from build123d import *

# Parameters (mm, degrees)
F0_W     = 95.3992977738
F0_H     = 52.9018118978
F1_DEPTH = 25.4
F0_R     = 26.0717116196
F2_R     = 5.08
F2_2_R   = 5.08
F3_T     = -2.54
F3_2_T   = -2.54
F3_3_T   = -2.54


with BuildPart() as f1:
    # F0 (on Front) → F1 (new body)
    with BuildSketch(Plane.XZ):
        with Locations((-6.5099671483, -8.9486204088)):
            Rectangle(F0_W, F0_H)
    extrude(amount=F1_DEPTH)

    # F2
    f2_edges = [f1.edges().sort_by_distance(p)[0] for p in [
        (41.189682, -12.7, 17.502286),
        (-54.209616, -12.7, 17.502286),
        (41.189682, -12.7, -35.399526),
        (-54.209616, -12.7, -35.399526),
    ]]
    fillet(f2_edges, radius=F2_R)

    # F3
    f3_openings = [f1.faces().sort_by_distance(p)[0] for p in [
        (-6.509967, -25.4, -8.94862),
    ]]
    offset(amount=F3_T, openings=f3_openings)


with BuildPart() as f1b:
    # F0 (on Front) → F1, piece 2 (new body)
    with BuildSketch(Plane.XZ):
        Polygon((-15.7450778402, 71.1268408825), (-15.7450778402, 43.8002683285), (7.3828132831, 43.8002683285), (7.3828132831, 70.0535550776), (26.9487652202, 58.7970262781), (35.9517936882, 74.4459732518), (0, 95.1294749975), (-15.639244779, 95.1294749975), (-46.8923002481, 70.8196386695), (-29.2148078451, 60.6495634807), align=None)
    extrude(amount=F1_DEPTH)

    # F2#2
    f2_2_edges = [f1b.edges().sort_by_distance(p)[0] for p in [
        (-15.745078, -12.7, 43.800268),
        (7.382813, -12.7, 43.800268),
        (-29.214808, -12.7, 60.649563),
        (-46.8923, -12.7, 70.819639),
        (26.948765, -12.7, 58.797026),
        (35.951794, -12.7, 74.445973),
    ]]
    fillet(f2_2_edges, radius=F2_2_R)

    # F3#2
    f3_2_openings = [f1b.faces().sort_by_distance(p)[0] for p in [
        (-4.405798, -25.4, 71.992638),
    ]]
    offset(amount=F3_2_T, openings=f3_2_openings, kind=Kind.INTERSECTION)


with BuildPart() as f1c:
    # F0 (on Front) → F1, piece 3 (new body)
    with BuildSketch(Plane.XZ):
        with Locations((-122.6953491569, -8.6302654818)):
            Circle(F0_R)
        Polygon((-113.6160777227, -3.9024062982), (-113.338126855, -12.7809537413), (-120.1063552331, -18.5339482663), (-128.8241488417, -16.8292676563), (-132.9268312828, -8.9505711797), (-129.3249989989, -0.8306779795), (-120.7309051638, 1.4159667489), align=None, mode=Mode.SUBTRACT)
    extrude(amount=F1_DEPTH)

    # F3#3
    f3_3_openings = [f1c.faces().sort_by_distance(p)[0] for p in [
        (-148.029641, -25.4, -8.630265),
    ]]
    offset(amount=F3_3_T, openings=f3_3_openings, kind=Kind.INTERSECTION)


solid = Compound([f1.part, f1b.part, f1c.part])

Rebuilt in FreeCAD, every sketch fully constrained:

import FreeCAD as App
import Part
import Sketcher
from FreeCAD import Vector
Q = App.Units.Quantity


def edges_at(feature, points):
    """Names of the edges that pass closest to the given points."""
    edges = feature.Shape.Edges
    near = lambda p: min(range(len(edges)), key=lambda i: edges[i].distToShape(Part.Vertex(*p))[0])
    return sorted({f"Edge{near(p) + 1}" for p in points})


def faces_at(feature, points):
    """Names of the faces that lie closest to the given points."""
    faces = feature.Shape.Faces
    near = lambda p: min(range(len(faces)), key=lambda i: faces[i].distToShape(Part.Vertex(*p))[0])
    return sorted({f"Face{near(p) + 1}" for p in points})


def add_polygon(sketch, points):
    """Adds a closed chain of lines whose ends are joined by coincident constraints."""
    first, n = sketch.GeometryCount, len(points)
    for a, b in zip(points, points[1:] + points[:1]):
        sketch.addGeometry(Part.LineSegment(App.Vector(*a, 0), App.Vector(*b, 0)), False)
    for i in range(n):
        sketch.addConstraint(Sketcher.Constraint("Coincident", first + i, 2, first + (i + 1) % n, 1))

doc = App.newDocument("Part")
body = doc.addObject("PartDesign::Body", "Body")

sketch1 = body.newObject("Sketcher::SketchObject", "Sketch")
sketch1.AttachmentSupport = (doc.getObject("XZ_Plane"), [""])
sketch1.MapMode = "FlatFace"
add_polygon(sketch1, [(-54, 18), (-54, -35), (41, -35), (41, 18)])
sketch1.addConstraint([
    Sketcher.Constraint("Vertical", 0),
    Sketcher.Constraint("Horizontal", 1),
    Sketcher.Constraint("Vertical", 2),
    Sketcher.Constraint("Horizontal", 3),
    Sketcher.Constraint("DistanceY", 0, 2, 0, 1, Q("52.901812 mm")),
    Sketcher.Constraint("DistanceX", 1, 1, 1, 2, Q("95.399298 mm")),
    Sketcher.Constraint("DistanceX", -1, 1, 1, 2, Q("41.189682 mm")),
    Sketcher.Constraint("DistanceY", 0, 2, -1, 1, Q("35.399526 mm")),
])
pad1 = body.newObject("PartDesign::Pad", "Pad")
pad1.Profile = sketch1
pad1.Length = Q("1 in")
doc.recompute()

fillet = body.newObject("PartDesign::Fillet", "Fillet")
fillet.Base = (pad1, edges_at(pad1, [
    (41.19, -12.7, 17.502),
    (-54.21, -12.7, 17.502),
    (41.19, -12.7, -35.4),
    (-54.21, -12.7, -35.4),
]))
fillet.Radius = Q("0.2 in")
doc.recompute()

thickness = body.newObject("PartDesign::Thickness", "Thickness")
thickness.Base = (fillet, faces_at(fillet, [(-6.51, -25.4, -8.949)]))
thickness.Value = Q("0.1 in")
thickness.Reversed = True
thickness.Join = "Arc"
body2 = doc.addObject("PartDesign::Body", "Body001")

sketch2 = body2.newObject("Sketcher::SketchObject", "Sketch001")
sketch2.AttachmentSupport = (doc.getObject("XZ_Plane001"), [""])
sketch2.MapMode = "FlatFace"
add_polygon(sketch2, [(-16, 71), (-16, 44), (7, 44), (7, 70), (27, 59), (36, 74), (0, 95), (-16, 95), (-47, 71), (-29, 61)])
sketch2.addConstraint([
    Sketcher.Constraint("Vertical", 0),
    Sketcher.Constraint("Horizontal", 1),
    Sketcher.Constraint("Vertical", 2),
    Sketcher.Constraint("Horizontal", 6),
    Sketcher.Constraint("PointOnObject", 5, 2, -2),
    Sketcher.Constraint("Perpendicular", 3, 4),
    Sketcher.Constraint("Perpendicular", 4, 5),
    Sketcher.Constraint("Parallel", 5, 8),
    Sketcher.Constraint("Parallel", 7, 9),
    Sketcher.Constraint("DistanceX", 1, 1, 1, 2, Q("23.127891 mm")),
    Sketcher.Constraint("DistanceX", 7, 2, -1, 1, Q("46.8923 mm")),
    Sketcher.Constraint("DistanceY", 4, 2, 5, 2, Q("20.683502 mm")),
    Sketcher.Constraint("Distance", 4, Q("18.053921 mm")),
    Sketcher.Constraint("Distance", 8, Q("20.394219 mm")),
    Sketcher.Constraint("DistanceX", 6, 2, 6, 1, Q("15.639245 mm")),
    Sketcher.Constraint("DistanceY", 0, 2, 0, 1, Q("27.326573 mm")),
    Sketcher.Constraint("DistanceY", 2, 1, 2, 2, Q("26.253287 mm")),
    Sketcher.Constraint("DistanceY", -1, 1, 0, 2, Q("43.800268 mm")),
    Sketcher.Constraint("DistanceY", -1, 1, 7, 2, Q("70.819639 mm")),
    Sketcher.Constraint("DistanceX", 2, 2, 3, 2, Q("19.565952 mm")),
])
pad2 = body2.newObject("PartDesign::Pad", "Pad001")
pad2.Profile = sketch2
pad2.Length = Q("1 in")
doc.recompute()

fillet2 = body2.newObject("PartDesign::Fillet", "Fillet001")
fillet2.Base = (pad2, edges_at(pad2, [
    (-15.745, -12.7, 43.8),
    (7.383, -12.7, 43.8),
    (-29.215, -12.7, 60.65),
    (-46.892, -12.7, 70.82),
    (26.949, -12.7, 58.797),
    (35.952, -12.7, 74.446),
]))
fillet2.Radius = Q("0.2 in")
doc.recompute()

thickness2 = body2.newObject("PartDesign::Thickness", "Thickness001")
thickness2.Base = (fillet2, faces_at(fillet2, [(-4.395, -25.4, 69.465)]))
thickness2.Value = Q("0.1 in")
thickness2.Reversed = True
thickness2.Join = "Intersection"
body3 = doc.addObject("PartDesign::Body", "Body002")

sketch3 = body3.newObject("Sketcher::SketchObject", "Sketch002")
sketch3.AttachmentSupport = (doc.getObject("XZ_Plane002"), [""])
sketch3.MapMode = "FlatFace"
sketch3.addGeometry(Part.Circle(Vector(-123, -9, 0), Vector(0, 0, 1), 26), False)
add_polygon(sketch3, [(-121, 1), (-114, -4), (-113, -13), (-120, -19), (-129, -17), (-133, -9), (-129, -1)])
sketch3.addConstraint([
    Sketcher.Constraint("Equal", 1, 2),
    Sketcher.Constraint("Equal", 2, 3),
    Sketcher.Constraint("Equal", 3, 4),
    Sketcher.Constraint("Equal", 4, 5),
    Sketcher.Constraint("Equal", 5, 6),
    Sketcher.Constraint("Equal", 6, 7),
    Sketcher.Constraint("Diameter", 0, Q("52.143423 mm")),
    Sketcher.Constraint("DistanceX", 6, 2, -1, 1, Q("129.324999 mm")),
    Sketcher.Constraint("DistanceX", 4, 2, 0, 3, Q("6.1288 mm")),
    Sketcher.Constraint("DistanceX", 0, 3, -1, 1, Q("122.695349 mm")),
    Sketcher.Constraint("DistanceY", 3, 2, -1, 1, Q("18.533948 mm")),
    Sketcher.Constraint("DistanceX", 5, 2, -1, 1, Q("132.926831 mm")),
    Sketcher.Constraint("DistanceY", 5, 2, -1, 1, Q("8.950571 mm")),
    Sketcher.Constraint("DistanceX", 0, 3, 1, 2, Q("9.079271 mm")),
    Sketcher.Constraint("DistanceY", 0, 3, 1, 2, Q("4.727859 mm")),
    Sketcher.Constraint("DistanceX", 1, 2, 2, 2, Q("0.277951 mm")),
    Sketcher.Constraint("DistanceY", 2, 2, 0, 3, Q("4.150688 mm")),
])
pad3 = body3.newObject("PartDesign::Pad", "Pad002")
pad3.Profile = sketch3
pad3.Length = Q("1 in")
doc.recompute()

thickness3 = body3.newObject("PartDesign::Thickness", "Thickness002")
thickness3.Base = (pad3, faces_at(pad3, [(-133.124, -25.4, -19.059)]))
thickness3.Value = Q("0.1 in")
thickness3.Reversed = True
thickness3.Join = "Intersection"

doc.recompute()
